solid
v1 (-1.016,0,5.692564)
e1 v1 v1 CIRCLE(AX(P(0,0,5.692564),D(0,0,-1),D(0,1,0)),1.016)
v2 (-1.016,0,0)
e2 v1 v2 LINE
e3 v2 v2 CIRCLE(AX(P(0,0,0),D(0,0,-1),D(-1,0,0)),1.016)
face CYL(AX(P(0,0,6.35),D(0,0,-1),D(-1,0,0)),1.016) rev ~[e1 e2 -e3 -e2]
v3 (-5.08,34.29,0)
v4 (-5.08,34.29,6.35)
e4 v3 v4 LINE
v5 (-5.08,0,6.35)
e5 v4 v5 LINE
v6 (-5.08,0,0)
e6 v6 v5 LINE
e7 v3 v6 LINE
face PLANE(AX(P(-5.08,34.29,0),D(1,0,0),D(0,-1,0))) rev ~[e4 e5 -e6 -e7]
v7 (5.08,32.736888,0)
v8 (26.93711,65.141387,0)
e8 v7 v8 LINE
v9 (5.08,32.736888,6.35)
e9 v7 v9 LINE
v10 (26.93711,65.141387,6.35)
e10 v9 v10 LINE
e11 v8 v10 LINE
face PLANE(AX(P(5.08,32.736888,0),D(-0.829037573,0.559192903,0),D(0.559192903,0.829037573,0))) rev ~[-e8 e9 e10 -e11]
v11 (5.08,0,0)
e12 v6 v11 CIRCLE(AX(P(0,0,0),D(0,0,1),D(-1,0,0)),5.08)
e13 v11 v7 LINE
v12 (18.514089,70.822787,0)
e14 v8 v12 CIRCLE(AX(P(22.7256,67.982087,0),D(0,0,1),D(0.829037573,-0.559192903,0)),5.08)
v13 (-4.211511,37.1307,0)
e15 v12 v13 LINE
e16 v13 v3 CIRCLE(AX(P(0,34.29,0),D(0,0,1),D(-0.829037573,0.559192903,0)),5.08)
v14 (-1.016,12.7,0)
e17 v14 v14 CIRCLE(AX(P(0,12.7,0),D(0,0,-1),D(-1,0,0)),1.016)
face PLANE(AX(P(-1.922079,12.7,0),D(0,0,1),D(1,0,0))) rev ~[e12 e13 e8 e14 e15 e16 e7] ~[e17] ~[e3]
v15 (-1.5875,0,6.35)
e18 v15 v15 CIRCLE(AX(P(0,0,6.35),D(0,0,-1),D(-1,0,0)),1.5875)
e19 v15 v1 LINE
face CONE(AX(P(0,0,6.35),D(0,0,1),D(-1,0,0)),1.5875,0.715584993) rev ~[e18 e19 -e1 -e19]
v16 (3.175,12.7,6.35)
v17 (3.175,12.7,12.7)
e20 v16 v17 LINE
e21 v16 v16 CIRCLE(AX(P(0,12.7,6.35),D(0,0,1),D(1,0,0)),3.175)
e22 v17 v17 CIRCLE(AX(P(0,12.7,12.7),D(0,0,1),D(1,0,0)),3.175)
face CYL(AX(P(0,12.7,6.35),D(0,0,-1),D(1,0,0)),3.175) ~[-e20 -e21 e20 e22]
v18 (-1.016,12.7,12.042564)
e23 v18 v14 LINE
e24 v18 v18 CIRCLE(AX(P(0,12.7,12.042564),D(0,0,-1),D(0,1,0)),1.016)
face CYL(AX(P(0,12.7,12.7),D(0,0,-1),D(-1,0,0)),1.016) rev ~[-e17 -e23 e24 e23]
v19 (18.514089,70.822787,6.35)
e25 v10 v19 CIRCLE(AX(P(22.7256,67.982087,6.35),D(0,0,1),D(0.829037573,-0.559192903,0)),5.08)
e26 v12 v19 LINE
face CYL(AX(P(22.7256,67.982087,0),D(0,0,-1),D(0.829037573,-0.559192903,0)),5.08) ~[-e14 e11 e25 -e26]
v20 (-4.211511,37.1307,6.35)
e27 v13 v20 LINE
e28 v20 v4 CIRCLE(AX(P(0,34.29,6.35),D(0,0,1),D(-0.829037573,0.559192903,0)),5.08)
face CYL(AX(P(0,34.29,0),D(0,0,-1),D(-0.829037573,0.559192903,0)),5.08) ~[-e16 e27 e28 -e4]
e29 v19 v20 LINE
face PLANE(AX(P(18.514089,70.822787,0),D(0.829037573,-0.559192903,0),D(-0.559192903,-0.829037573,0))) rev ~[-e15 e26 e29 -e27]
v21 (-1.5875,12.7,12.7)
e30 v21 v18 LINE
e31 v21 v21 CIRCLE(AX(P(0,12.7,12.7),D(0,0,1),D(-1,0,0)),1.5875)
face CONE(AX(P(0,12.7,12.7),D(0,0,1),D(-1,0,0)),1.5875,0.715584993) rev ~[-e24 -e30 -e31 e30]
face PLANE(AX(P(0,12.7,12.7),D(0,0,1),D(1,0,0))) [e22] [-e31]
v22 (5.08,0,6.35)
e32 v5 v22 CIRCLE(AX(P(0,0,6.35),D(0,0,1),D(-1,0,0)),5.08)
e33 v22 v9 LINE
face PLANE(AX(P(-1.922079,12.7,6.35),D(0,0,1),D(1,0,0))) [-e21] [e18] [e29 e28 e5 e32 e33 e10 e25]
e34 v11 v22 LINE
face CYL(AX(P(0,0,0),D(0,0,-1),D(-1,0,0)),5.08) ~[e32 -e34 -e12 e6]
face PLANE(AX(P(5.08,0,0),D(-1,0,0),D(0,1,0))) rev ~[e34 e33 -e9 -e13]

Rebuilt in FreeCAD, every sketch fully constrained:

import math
import FreeCAD as App
import Part
import Sketcher

V = App.Vector
Q = App.Units.Quantity

doc = App.newDocument("Part")
body = doc.addObject("PartDesign::Body", "Body")

sketch1 = doc.addObject("Sketcher::SketchObject", "Sketch")
body.addObject(sketch1)
sketch1.AttachmentSupport = (doc.XY_Plane, [""])
sketch1.MapMode = "FlatFace"
sketch1.addGeometry([
    Part.ArcOfCircle(Part.Circle(V(0, 0, 0), V(0, 0, 1), 5.08), math.radians(180), math.radians(360)),
    Part.LineSegment(V(5.08, 0, 0), V(5.08, 32.736888, 0)),
    Part.LineSegment(V(5.08, 32.736888, 0), V(26.93711, 65.141387, 0)),
    Part.ArcOfCircle(Part.Circle(V(22.7256, 67.982087, 0), V(0, 0, 1), 5.08), math.radians(-34), math.radians(146)),
    Part.LineSegment(V(18.514089, 70.822787, 0), V(-4.211511, 37.1307, 0)),
    Part.ArcOfCircle(Part.Circle(V(0, 34.29, 0), V(0, 0, 1), 5.08), math.radians(146), math.radians(180)),
    Part.LineSegment(V(-5.08, 34.29, 0), V(-5.08, 0, 0)),
], False)
sketch1.addConstraint([
    Sketcher.Constraint("Tangent", 0, 2, 1, 1),
    Sketcher.Constraint("Coincident", 1, 2, 2, 1),
    Sketcher.Constraint("Tangent", 2, 2, 3, 1),
    Sketcher.Constraint("Tangent", 3, 2, 4, 1),
    Sketcher.Constraint("Tangent", 4, 2, 5, 1),
    Sketcher.Constraint("Tangent", 5, 2, 6, 1),
    Sketcher.Constraint("Tangent", 6, 2, 0, 1),
    Sketcher.Constraint("Vertical", 1),
    Sketcher.Constraint("Vertical", 6),
    Sketcher.Constraint("Coincident", 0, 3, -1, 1),
    Sketcher.Constraint("Equal", 0, 3),
    Sketcher.Constraint("Equal", 3, 5),
    Sketcher.Constraint("Parallel", 2, 4),
    Sketcher.Constraint("Radius", 0, Q("0.2 in")),
    Sketcher.Constraint("Angle", 2, Q("56 deg")),
    Sketcher.Constraint("Distance", 4, Q("1.6 in")),
    Sketcher.Constraint("DistanceY", 6, 2, 6, 1, Q("1.35 in")),
])
pad1 = doc.addObject("PartDesign::Pad", "Pad")
body.addObject(pad1)
pad1.Profile = sketch1
pad1.Length = Q("0.25 in")

sketch2 = doc.addObject("Sketcher::SketchObject", "Sketch001")
body.addObject(sketch2)
sketch2.AttachmentSupport = (doc.XY_Plane, [""])
sketch2.MapMode = "FlatFace"
sketch2.AttachmentOffset = App.Placement(V(0, 0, 0.25 * 25.4), App.Rotation())
sketch2.addGeometry(Part.Circle(V(0, 12.7, 0), V(0, 0, 1), 3.175), False)
sketch2.addConstraint([
    Sketcher.Constraint("PointOnObject", 0, 3, -2),
    Sketcher.Constraint("Diameter", 0, Q("0.25 in")),
    Sketcher.Constraint("DistanceY", -1, 1, 0, 3, Q("0.5 in")),
])
pad2 = doc.addObject("PartDesign::Pad", "Pad001")
body.addObject(pad2)
pad2.Profile = sketch2
pad2.Length = Q("0.25 in")

sketch3 = doc.addObject("Sketcher::SketchObject", "Sketch002")
body.addObject(sketch3)
sketch3.AttachmentSupport = (doc.XY_Plane, [""])
sketch3.MapMode = "FlatFace"
sketch3.AttachmentOffset = App.Placement(V(0, 0, 0.5 * 25.4), App.Rotation())
sketch3.addGeometry(Part.Circle(V(0, 12.7, 0), V(0, 0, 1), 1.016), False)
sketch3.addConstraint([
    Sketcher.Constraint("PointOnObject", 0, 3, -2),
    Sketcher.Constraint("Diameter", 0, Q("0.08 in")),
    Sketcher.Constraint("DistanceY", -1, 1, 0, 3, Q("0.5 in")),
])
doc.recompute()
hole = doc.addObject("PartDesign::Hole", "Hole")
body.addObject(hole)
hole.Profile = sketch3
hole.ThreadType = "None"
hole.Diameter = Q("0.08 in")
hole.DepthType = "ThroughAll"
hole.HoleCutType = "Countersink"
hole.HoleCutDiameter = Q("0.125 in")
hole.HoleCutCountersinkAngle = 82

sketch4 = doc.addObject("Sketcher::SketchObject", "Sketch003")
body.addObject(sketch4)
sketch4.AttachmentSupport = (doc.XY_Plane, [""])
sketch4.MapMode = "FlatFace"
sketch4.AttachmentOffset = App.Placement(V(0, 0, 0.25 * 25.4), App.Rotation())
sketch4.addGeometry(Part.Circle(V(0, 0, 0), V(0, 0, 1), 1.016), False)
sketch4.addConstraint([
    Sketcher.Constraint("Coincident", 0, 3, -1, 1),
    Sketcher.Constraint("Diameter", 0, Q("0.08 in")),
])
doc.recompute()
hole2 = doc.addObject("PartDesign::Hole", "Hole001")
body.addObject(hole2)
hole2.Profile = sketch4
hole2.ThreadType = "None"
hole2.Diameter = Q("0.08 in")
hole2.DepthType = "ThroughAll"
hole2.HoleCutType = "Countersink"
hole2.HoleCutDiameter = Q("0.125 in")
hole2.HoleCutCountersinkAngle = 82

doc.recompute()
